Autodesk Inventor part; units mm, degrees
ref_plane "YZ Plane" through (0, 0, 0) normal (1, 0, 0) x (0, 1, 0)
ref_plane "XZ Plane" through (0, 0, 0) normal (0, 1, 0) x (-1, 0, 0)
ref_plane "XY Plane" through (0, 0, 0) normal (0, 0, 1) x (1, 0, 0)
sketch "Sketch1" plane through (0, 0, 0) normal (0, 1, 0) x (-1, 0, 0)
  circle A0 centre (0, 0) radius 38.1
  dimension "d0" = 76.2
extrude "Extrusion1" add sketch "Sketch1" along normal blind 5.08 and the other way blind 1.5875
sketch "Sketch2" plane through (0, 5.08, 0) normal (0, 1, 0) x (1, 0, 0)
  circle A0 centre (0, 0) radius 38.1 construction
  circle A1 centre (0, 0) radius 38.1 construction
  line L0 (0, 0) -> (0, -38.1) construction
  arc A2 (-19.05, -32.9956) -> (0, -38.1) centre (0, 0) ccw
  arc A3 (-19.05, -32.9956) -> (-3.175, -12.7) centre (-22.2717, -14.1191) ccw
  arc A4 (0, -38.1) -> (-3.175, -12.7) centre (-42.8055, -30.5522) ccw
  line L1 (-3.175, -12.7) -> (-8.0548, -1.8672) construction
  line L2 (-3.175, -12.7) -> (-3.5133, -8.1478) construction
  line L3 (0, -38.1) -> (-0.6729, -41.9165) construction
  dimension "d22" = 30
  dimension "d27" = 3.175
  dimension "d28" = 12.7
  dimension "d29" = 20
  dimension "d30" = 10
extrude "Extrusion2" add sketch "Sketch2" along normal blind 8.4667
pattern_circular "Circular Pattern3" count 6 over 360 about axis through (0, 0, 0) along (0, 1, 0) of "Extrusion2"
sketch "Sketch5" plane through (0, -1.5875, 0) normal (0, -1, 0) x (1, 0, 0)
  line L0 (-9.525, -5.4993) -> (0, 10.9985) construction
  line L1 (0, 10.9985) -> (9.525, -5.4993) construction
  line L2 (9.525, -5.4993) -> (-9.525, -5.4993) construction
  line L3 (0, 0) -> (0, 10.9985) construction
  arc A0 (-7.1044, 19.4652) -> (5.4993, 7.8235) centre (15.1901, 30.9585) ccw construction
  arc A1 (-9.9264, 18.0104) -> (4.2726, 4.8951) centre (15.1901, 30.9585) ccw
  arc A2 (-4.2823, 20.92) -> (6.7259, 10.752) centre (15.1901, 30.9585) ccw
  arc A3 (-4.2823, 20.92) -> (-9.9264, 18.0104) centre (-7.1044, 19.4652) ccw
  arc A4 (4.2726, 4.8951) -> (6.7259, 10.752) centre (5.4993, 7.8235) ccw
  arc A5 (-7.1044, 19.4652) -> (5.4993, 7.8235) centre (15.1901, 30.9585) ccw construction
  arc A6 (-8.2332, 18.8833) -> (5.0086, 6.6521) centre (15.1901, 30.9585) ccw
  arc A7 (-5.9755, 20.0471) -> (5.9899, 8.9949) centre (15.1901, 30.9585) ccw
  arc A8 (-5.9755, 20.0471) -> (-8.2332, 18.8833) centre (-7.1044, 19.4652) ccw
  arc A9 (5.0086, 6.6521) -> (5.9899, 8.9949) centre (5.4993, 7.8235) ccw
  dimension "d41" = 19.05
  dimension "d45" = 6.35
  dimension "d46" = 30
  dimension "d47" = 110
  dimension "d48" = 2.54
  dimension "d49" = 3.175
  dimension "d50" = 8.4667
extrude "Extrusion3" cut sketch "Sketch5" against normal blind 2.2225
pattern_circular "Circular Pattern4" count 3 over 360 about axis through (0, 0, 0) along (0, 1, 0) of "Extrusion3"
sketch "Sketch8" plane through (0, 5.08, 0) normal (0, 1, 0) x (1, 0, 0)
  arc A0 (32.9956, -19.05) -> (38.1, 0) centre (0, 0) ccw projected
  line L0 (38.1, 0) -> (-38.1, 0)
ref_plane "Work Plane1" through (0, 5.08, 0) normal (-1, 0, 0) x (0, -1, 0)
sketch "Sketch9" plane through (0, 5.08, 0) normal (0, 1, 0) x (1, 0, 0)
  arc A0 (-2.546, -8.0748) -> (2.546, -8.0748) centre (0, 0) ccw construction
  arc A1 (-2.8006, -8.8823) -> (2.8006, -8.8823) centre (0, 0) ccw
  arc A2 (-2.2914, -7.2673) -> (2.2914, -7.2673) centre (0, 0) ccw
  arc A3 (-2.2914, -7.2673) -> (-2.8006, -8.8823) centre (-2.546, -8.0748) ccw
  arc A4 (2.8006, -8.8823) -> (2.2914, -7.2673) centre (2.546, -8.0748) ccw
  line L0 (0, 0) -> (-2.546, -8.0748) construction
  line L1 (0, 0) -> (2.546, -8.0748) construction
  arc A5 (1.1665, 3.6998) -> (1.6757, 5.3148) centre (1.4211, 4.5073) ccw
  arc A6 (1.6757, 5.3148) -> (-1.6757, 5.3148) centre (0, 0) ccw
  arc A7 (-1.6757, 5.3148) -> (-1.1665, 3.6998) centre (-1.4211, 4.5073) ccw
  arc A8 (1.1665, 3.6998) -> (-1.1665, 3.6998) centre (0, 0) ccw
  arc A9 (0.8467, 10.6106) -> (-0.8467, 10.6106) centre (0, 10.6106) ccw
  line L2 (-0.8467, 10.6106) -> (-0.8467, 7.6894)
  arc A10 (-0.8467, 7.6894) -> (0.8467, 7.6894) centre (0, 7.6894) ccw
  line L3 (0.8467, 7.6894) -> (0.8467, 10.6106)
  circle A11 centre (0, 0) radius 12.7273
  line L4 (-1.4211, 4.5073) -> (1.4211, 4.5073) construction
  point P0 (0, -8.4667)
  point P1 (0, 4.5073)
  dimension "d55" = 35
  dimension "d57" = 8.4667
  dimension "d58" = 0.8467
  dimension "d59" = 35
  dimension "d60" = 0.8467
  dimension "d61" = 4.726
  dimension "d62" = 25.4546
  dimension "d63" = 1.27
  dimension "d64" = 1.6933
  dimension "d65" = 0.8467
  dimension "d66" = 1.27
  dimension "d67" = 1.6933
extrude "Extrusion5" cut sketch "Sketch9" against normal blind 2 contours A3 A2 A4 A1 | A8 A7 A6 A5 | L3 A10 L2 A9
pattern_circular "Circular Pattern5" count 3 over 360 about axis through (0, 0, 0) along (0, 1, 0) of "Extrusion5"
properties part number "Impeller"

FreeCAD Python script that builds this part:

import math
import FreeCAD as App
import Part
import Sketcher
from FreeCAD import Vector
Q = App.Units.Quantity

doc = App.newDocument("Part")
body = doc.addObject("PartDesign::Body", "Body")

sketch1 = body.newObject("Sketcher::SketchObject", "Sketch")
sketch1.AttachmentSupport = (doc.getObject("XZ_Plane"), [""])
sketch1.MapMode = "FlatFace"
sketch1.addGeometry(Part.Circle(Vector(0, 0, 0), Vector(0, 0, 1), 38), False)
sketch1.addConstraint([
    Sketcher.Constraint("Coincident", 0, 3, -1, 1),
    Sketcher.Constraint("Diameter", 0, Q("3 in")),
])
pad1 = body.newObject("PartDesign::Pad", "Pad")
pad1.Profile = sketch1
pad1.Type = "TwoLengths"
pad1.Length = Q("0.2 in")
pad1.Length2 = Q("0.0625 in")
pad1.Reversed = True

sketch2 = body.newObject("Sketcher::SketchObject", "Sketch001")
sketch2.AttachmentSupport = (doc.getObject("XZ_Plane"), [""])
sketch2.MapMode = "FlatFace"
sketch2.AttachmentOffset = App.Placement(Vector(0, 0, -0.2 * 25.4), App.Rotation())
sketch2.addGeometry([
    Part.ArcOfCircle(Part.Circle(Vector(-22, 14, 0), Vector(0, 0, 1), 19), math.radians(-4), math.radians(80)),
    Part.ArcOfCircle(Part.Circle(Vector(0, 0, 0), Vector(0, 0, 1), 38), math.radians(90), math.radians(120)),
    Part.ArcOfCircle(Part.Circle(Vector(-43, 31, 0), Vector(0, 0, 1), 43), math.radians(-24), math.radians(10)),
], False)
sketch2.addConstraint([
    Sketcher.Constraint("Coincident", 0, 2, 1, 2),
    Sketcher.Constraint("Coincident", 1, 1, 2, 2),
    Sketcher.Constraint("Coincident", 2, 1, 0, 1),
    Sketcher.Constraint("Coincident", 1, 3, -1, 1),
    Sketcher.Constraint("PointOnObject", 1, 1, -2),
    Sketcher.Constraint("DistanceY", -1, 1, 2, 1, Q("0.5 in")),
    Sketcher.Constraint("Radius", 1, Q("1.5 in")),
    Sketcher.Constraint("DistanceX", 2, 1, -1, 1, Q("0.125 in")),
    Sketcher.Constraint("DistanceX", 0, 2, -1, 1, Q("0.75 in")),
    Sketcher.Constraint("Radius", 0, 19.1495),
    Sketcher.Constraint("Radius", 2, 43.4658),
])
pad2 = body.newObject("PartDesign::Pad", "Pad001")
pad2.Profile = sketch2
pad2.Length = 8.4667
pad2.Reversed = True
doc.recompute()

polarpattern = body.newObject("PartDesign::PolarPattern", "PolarPattern")
polarpattern.Originals = [pad2]
polarpattern.Axis = (doc.getObject("Y_Axis"), [""])
polarpattern.Angle = 360
polarpattern.Occurrences = 6
body.Tip = polarpattern

sketch3 = body.newObject("Sketcher::SketchObject", "Sketch002")
sketch3.AttachmentSupport = (doc.getObject("XZ_Plane"), [""])
sketch3.MapMode = "FlatFace"
sketch3.AttachmentOffset = App.Placement(Vector(0, 0, 0.0625 * 25.4), App.Rotation())
sketch3.addGeometry([
    Part.ArcOfCircle(Part.Circle(Vector(-7.1044, 19.4652, 0), Vector(0, 0, 1), 3.17501), math.radians(27.271225), math.radians(207.272052)),
    Part.ArcOfCircle(Part.Circle(Vector(15.1901, 30.9585, 0), Vector(0, 0, 1), 28.257598), math.radians(-152.727914), math.radians(-112.727953)),
    Part.ArcOfCircle(Part.Circle(Vector(5.4993, 7.8235, 0), Vector(0, 0, 1), 3.174952), math.radians(-112.728697), math.radians(67.273664)),
    Part.ArcOfCircle(Part.Circle(Vector(15.1901, 30.9585, 0), Vector(0, 0, 1), 21.907666), math.radians(-152.727784), math.radians(-112.728079)),
    Part.ArcOfCircle(Part.Circle(Vector(15.1901, 30.9585, 0), Vector(0, 0, 1), 26.352636), math.radians(-152.72795), math.radians(-112.727906)),
    Part.ArcOfCircle(Part.Circle(Vector(-7.1044, 19.4652, 0), Vector(0, 0, 1), 1.270048), math.radians(27.269183), math.radians(207.27125)),
    Part.ArcOfCircle(Part.Circle(Vector(15.1901, 30.9585, 0), Vector(0, 0, 1), 23.812628), math.radians(-152.727754), math.radians(-112.728029)),
    Part.ArcOfCircle(Part.Circle(Vector(5.4993, 7.8235, 0), Vector(0, 0, 1), 1.270025), math.radians(-112.728832), math.radians(67.275329)),
], False)
sketch3.addConstraint([
    Sketcher.Constraint("Coincident", 0, 2, 1, 1),
    Sketcher.Constraint("Coincident", 1, 2, 2, 1),
    Sketcher.Constraint("Coincident", 2, 2, 3, 2),
    Sketcher.Constraint("Coincident", 3, 1, 0, 1),
    Sketcher.Constraint("Coincident", 4, 1, 5, 2),
    Sketcher.Constraint("Coincident", 5, 1, 6, 1),
    Sketcher.Constraint("Coincident", 6, 2, 7, 2),
    Sketcher.Constraint("Coincident", 7, 1, 4, 2),
    Sketcher.Constraint("Coincident", 3, 3, 1, 3),
    Sketcher.Constraint("Coincident", 4, 3, 1, 3),
    Sketcher.Constraint("Coincident", 5, 3, 0, 3),
    Sketcher.Constraint("Coincident", 6, 3, 1, 3),
    Sketcher.Constraint("Radius", 5, Q("0.05 in")),
    Sketcher.Constraint("Radius", 0, Q("0.125 in")),
    Sketcher.Constraint("Radius", 6, Q("0.9375 in")),
    Sketcher.Constraint("DistanceY", -1, 1, 2, 3, Q("0.308 in")),
    Sketcher.Constraint("DistanceY", -1, 1, 7, 3, Q("0.308 in")),
    Sketcher.Constraint("DistanceX", 0, 3, -1, 1, Q("0.2797 in")),
    Sketcher.Constraint("DistanceX", -1, 1, 2, 3, Q("0.2165 in")),
    Sketcher.Constraint("DistanceX", 0, 2, -1, 1, Q("0.3908 in")),
    Sketcher.Constraint("DistanceX", -1, 1, 2, 2, Q("0.2648 in")),
    Sketcher.Constraint("DistanceX", 3, 1, -1, 1, Q("0.1686 in")),
    Sketcher.Constraint("DistanceX", -1, 1, 7, 1, Q("0.1972 in")),
    Sketcher.Constraint("DistanceY", 0, 3, 1, 3, Q("0.4525 in")),
    Sketcher.Constraint("DistanceX", 1, 2, 2, 3, Q("0.0483 in")),
    Sketcher.Constraint("DistanceY", 4, 1, 0, 3, Q("0.0229 in")),
    Sketcher.Constraint("DistanceY", 0, 3, 5, 1, Q("0.0229 in")),
    Sketcher.Constraint("DistanceX", 1, 2, 6, 2, Q("0.0676 in")),
])
pocket1 = body.newObject("PartDesign::Pocket", "Pocket")
pocket1.Profile = sketch3
pocket1.Length = Q("0.0875 in")
doc.recompute()

polarpattern2 = body.newObject("PartDesign::PolarPattern", "PolarPattern001")
polarpattern2.Originals = [pocket1]
polarpattern2.Axis = (doc.getObject("Y_Axis"), [""])
polarpattern2.Angle = 360
polarpattern2.Occurrences = 3
body.Tip = polarpattern2

sketch4 = body.newObject("Sketcher::SketchObject", "Sketch003")
sketch4.AttachmentSupport = (doc.getObject("XZ_Plane"), [""])
sketch4.MapMode = "FlatFace"
sketch4.AttachmentOffset = App.Placement(Vector(0, 0, -0.2 * 25.4), App.Rotation())
sketch4.addGeometry([
    Part.ArcOfCircle(Part.Circle(Vector(-2.5, 8.1, 0), Vector(0, 0, 1), 0.8), math.radians(107), math.radians(287)),
    Part.ArcOfCircle(Part.Circle(Vector(0, 0, 0), Vector(0, 0, 1), 9.3), math.radians(72), math.radians(108)),
    Part.ArcOfCircle(Part.Circle(Vector(2.5, 8.1, 0), Vector(0, 0, 1), 0.8), math.radians(-107), math.radians(73)),
    Part.ArcOfCircle(Part.Circle(Vector(0, 0, 0), Vector(0, 0, 1), 7.6), math.radians(72), math.radians(108)),
    Part.ArcOfCircle(Part.Circle(Vector(0, 0, 0), Vector(0, 0, 1), 3.9), math.radians(-107), math.radians(-73)),
    Part.ArcOfCircle(Part.Circle(Vector(1.4, -4.5, 0), Vector(0, 0, 1), 0.8), math.radians(-73), math.radians(107)),
    Part.ArcOfCircle(Part.Circle(Vector(0, 0, 0), Vector(0, 0, 1), 5.6), math.radians(-107), math.radians(-73)),
    Part.ArcOfCircle(Part.Circle(Vector(-1.4, -4.5, 0), Vector(0, 0, 1), 0.8), math.radians(73), math.radians(253)),
    Part.LineSegment(Vector(0.8, -7.7, 0), Vector(0.8, -10.6, 0)),
    Part.ArcOfCircle(Part.Circle(Vector(0, -10.6, 0), Vector(0, 0, 1), 0.8), math.radians(180), math.radians(360)),
    Part.LineSegment(Vector(-0.8, -10.6, 0), Vector(-0.8, -7.7, 0)),
    Part.ArcOfCircle(Part.Circle(Vector(0, -7.7, 0), Vector(0, 0, 1), 0.8), math.radians(0), math.radians(180)),
], False)
sketch4.addConstraint([
    Sketcher.Constraint("Tangent", 0, 1, 1, 2),
    Sketcher.Constraint("Tangent", 1, 1, 2, 2),
    Sketcher.Constraint("Tangent", 2, 1, 3, 1),
    Sketcher.Constraint("Tangent", 3, 2, 0, 2),
    Sketcher.Constraint("Tangent", 4, 2, 5, 2),
    Sketcher.Constraint("Tangent", 5, 1, 6, 2),
    Sketcher.Constraint("Tangent", 6, 1, 7, 2),
    Sketcher.Constraint("Tangent", 7, 1, 4, 1),
    Sketcher.Constraint("Tangent", 8, 2, 9, 2),
    Sketcher.Constraint("Tangent", 9, 1, 10, 1),
    Sketcher.Constraint("Tangent", 10, 2, 11, 2),
    Sketcher.Constraint("Tangent", 11, 1, 8, 1),
    Sketcher.Constraint("Vertical", 8),
    Sketcher.Constraint("Vertical", 10),
    Sketcher.Constraint("Coincident", 1, 3, -1, 1),
    Sketcher.Constraint("Coincident", 3, 3, -1, 1),
    Sketcher.Constraint("Coincident", 4, 3, -1, 1),
    Sketcher.Constraint("Coincident", 6, 3, -1, 1),
    Sketcher.Constraint("Equal", 2, 5),
    Sketcher.Constraint("Equal", 7, 9),
    Sketcher.Constraint("PointOnObject", 9, 3, -2),
    Sketcher.Constraint("Horizontal", 0, 3, 2, 3),
    Sketcher.Constraint("Horizontal", 5, 3, 7, 3),
    Sketcher.Constraint("Radius", 3, Q("0.3 in")),
    Sketcher.Constraint("Radius", 0, 0.8467),
    Sketcher.Constraint("Radius", 6, Q("0.2194 in")),
    Sketcher.Constraint("DistanceY", 8, 2, 8, 1, Q("0.115 in")),
    Sketcher.Constraint("DistanceY", -1, 1, 0, 3, Q("0.3179 in")),
    Sketcher.Constraint("DistanceX", 7, 3, 5, 3, Q("0.1119 in")),
    Sketcher.Constraint("DistanceY", 11, 3, 5, 1, Q("0.0935 in")),
])
pocket2 = body.newObject("PartDesign::Pocket", "Pocket001")
pocket2.Profile = sketch4
pocket2.Length = 2
pocket2.Reversed = True
doc.recompute()

polarpattern3 = body.newObject("PartDesign::PolarPattern", "PolarPattern002")
polarpattern3.Originals = [pocket2]
polarpattern3.Axis = (doc.getObject("Y_Axis"), [""])
polarpattern3.Angle = 360
polarpattern3.Occurrences = 3
body.Tip = polarpattern3

doc.recompute()
